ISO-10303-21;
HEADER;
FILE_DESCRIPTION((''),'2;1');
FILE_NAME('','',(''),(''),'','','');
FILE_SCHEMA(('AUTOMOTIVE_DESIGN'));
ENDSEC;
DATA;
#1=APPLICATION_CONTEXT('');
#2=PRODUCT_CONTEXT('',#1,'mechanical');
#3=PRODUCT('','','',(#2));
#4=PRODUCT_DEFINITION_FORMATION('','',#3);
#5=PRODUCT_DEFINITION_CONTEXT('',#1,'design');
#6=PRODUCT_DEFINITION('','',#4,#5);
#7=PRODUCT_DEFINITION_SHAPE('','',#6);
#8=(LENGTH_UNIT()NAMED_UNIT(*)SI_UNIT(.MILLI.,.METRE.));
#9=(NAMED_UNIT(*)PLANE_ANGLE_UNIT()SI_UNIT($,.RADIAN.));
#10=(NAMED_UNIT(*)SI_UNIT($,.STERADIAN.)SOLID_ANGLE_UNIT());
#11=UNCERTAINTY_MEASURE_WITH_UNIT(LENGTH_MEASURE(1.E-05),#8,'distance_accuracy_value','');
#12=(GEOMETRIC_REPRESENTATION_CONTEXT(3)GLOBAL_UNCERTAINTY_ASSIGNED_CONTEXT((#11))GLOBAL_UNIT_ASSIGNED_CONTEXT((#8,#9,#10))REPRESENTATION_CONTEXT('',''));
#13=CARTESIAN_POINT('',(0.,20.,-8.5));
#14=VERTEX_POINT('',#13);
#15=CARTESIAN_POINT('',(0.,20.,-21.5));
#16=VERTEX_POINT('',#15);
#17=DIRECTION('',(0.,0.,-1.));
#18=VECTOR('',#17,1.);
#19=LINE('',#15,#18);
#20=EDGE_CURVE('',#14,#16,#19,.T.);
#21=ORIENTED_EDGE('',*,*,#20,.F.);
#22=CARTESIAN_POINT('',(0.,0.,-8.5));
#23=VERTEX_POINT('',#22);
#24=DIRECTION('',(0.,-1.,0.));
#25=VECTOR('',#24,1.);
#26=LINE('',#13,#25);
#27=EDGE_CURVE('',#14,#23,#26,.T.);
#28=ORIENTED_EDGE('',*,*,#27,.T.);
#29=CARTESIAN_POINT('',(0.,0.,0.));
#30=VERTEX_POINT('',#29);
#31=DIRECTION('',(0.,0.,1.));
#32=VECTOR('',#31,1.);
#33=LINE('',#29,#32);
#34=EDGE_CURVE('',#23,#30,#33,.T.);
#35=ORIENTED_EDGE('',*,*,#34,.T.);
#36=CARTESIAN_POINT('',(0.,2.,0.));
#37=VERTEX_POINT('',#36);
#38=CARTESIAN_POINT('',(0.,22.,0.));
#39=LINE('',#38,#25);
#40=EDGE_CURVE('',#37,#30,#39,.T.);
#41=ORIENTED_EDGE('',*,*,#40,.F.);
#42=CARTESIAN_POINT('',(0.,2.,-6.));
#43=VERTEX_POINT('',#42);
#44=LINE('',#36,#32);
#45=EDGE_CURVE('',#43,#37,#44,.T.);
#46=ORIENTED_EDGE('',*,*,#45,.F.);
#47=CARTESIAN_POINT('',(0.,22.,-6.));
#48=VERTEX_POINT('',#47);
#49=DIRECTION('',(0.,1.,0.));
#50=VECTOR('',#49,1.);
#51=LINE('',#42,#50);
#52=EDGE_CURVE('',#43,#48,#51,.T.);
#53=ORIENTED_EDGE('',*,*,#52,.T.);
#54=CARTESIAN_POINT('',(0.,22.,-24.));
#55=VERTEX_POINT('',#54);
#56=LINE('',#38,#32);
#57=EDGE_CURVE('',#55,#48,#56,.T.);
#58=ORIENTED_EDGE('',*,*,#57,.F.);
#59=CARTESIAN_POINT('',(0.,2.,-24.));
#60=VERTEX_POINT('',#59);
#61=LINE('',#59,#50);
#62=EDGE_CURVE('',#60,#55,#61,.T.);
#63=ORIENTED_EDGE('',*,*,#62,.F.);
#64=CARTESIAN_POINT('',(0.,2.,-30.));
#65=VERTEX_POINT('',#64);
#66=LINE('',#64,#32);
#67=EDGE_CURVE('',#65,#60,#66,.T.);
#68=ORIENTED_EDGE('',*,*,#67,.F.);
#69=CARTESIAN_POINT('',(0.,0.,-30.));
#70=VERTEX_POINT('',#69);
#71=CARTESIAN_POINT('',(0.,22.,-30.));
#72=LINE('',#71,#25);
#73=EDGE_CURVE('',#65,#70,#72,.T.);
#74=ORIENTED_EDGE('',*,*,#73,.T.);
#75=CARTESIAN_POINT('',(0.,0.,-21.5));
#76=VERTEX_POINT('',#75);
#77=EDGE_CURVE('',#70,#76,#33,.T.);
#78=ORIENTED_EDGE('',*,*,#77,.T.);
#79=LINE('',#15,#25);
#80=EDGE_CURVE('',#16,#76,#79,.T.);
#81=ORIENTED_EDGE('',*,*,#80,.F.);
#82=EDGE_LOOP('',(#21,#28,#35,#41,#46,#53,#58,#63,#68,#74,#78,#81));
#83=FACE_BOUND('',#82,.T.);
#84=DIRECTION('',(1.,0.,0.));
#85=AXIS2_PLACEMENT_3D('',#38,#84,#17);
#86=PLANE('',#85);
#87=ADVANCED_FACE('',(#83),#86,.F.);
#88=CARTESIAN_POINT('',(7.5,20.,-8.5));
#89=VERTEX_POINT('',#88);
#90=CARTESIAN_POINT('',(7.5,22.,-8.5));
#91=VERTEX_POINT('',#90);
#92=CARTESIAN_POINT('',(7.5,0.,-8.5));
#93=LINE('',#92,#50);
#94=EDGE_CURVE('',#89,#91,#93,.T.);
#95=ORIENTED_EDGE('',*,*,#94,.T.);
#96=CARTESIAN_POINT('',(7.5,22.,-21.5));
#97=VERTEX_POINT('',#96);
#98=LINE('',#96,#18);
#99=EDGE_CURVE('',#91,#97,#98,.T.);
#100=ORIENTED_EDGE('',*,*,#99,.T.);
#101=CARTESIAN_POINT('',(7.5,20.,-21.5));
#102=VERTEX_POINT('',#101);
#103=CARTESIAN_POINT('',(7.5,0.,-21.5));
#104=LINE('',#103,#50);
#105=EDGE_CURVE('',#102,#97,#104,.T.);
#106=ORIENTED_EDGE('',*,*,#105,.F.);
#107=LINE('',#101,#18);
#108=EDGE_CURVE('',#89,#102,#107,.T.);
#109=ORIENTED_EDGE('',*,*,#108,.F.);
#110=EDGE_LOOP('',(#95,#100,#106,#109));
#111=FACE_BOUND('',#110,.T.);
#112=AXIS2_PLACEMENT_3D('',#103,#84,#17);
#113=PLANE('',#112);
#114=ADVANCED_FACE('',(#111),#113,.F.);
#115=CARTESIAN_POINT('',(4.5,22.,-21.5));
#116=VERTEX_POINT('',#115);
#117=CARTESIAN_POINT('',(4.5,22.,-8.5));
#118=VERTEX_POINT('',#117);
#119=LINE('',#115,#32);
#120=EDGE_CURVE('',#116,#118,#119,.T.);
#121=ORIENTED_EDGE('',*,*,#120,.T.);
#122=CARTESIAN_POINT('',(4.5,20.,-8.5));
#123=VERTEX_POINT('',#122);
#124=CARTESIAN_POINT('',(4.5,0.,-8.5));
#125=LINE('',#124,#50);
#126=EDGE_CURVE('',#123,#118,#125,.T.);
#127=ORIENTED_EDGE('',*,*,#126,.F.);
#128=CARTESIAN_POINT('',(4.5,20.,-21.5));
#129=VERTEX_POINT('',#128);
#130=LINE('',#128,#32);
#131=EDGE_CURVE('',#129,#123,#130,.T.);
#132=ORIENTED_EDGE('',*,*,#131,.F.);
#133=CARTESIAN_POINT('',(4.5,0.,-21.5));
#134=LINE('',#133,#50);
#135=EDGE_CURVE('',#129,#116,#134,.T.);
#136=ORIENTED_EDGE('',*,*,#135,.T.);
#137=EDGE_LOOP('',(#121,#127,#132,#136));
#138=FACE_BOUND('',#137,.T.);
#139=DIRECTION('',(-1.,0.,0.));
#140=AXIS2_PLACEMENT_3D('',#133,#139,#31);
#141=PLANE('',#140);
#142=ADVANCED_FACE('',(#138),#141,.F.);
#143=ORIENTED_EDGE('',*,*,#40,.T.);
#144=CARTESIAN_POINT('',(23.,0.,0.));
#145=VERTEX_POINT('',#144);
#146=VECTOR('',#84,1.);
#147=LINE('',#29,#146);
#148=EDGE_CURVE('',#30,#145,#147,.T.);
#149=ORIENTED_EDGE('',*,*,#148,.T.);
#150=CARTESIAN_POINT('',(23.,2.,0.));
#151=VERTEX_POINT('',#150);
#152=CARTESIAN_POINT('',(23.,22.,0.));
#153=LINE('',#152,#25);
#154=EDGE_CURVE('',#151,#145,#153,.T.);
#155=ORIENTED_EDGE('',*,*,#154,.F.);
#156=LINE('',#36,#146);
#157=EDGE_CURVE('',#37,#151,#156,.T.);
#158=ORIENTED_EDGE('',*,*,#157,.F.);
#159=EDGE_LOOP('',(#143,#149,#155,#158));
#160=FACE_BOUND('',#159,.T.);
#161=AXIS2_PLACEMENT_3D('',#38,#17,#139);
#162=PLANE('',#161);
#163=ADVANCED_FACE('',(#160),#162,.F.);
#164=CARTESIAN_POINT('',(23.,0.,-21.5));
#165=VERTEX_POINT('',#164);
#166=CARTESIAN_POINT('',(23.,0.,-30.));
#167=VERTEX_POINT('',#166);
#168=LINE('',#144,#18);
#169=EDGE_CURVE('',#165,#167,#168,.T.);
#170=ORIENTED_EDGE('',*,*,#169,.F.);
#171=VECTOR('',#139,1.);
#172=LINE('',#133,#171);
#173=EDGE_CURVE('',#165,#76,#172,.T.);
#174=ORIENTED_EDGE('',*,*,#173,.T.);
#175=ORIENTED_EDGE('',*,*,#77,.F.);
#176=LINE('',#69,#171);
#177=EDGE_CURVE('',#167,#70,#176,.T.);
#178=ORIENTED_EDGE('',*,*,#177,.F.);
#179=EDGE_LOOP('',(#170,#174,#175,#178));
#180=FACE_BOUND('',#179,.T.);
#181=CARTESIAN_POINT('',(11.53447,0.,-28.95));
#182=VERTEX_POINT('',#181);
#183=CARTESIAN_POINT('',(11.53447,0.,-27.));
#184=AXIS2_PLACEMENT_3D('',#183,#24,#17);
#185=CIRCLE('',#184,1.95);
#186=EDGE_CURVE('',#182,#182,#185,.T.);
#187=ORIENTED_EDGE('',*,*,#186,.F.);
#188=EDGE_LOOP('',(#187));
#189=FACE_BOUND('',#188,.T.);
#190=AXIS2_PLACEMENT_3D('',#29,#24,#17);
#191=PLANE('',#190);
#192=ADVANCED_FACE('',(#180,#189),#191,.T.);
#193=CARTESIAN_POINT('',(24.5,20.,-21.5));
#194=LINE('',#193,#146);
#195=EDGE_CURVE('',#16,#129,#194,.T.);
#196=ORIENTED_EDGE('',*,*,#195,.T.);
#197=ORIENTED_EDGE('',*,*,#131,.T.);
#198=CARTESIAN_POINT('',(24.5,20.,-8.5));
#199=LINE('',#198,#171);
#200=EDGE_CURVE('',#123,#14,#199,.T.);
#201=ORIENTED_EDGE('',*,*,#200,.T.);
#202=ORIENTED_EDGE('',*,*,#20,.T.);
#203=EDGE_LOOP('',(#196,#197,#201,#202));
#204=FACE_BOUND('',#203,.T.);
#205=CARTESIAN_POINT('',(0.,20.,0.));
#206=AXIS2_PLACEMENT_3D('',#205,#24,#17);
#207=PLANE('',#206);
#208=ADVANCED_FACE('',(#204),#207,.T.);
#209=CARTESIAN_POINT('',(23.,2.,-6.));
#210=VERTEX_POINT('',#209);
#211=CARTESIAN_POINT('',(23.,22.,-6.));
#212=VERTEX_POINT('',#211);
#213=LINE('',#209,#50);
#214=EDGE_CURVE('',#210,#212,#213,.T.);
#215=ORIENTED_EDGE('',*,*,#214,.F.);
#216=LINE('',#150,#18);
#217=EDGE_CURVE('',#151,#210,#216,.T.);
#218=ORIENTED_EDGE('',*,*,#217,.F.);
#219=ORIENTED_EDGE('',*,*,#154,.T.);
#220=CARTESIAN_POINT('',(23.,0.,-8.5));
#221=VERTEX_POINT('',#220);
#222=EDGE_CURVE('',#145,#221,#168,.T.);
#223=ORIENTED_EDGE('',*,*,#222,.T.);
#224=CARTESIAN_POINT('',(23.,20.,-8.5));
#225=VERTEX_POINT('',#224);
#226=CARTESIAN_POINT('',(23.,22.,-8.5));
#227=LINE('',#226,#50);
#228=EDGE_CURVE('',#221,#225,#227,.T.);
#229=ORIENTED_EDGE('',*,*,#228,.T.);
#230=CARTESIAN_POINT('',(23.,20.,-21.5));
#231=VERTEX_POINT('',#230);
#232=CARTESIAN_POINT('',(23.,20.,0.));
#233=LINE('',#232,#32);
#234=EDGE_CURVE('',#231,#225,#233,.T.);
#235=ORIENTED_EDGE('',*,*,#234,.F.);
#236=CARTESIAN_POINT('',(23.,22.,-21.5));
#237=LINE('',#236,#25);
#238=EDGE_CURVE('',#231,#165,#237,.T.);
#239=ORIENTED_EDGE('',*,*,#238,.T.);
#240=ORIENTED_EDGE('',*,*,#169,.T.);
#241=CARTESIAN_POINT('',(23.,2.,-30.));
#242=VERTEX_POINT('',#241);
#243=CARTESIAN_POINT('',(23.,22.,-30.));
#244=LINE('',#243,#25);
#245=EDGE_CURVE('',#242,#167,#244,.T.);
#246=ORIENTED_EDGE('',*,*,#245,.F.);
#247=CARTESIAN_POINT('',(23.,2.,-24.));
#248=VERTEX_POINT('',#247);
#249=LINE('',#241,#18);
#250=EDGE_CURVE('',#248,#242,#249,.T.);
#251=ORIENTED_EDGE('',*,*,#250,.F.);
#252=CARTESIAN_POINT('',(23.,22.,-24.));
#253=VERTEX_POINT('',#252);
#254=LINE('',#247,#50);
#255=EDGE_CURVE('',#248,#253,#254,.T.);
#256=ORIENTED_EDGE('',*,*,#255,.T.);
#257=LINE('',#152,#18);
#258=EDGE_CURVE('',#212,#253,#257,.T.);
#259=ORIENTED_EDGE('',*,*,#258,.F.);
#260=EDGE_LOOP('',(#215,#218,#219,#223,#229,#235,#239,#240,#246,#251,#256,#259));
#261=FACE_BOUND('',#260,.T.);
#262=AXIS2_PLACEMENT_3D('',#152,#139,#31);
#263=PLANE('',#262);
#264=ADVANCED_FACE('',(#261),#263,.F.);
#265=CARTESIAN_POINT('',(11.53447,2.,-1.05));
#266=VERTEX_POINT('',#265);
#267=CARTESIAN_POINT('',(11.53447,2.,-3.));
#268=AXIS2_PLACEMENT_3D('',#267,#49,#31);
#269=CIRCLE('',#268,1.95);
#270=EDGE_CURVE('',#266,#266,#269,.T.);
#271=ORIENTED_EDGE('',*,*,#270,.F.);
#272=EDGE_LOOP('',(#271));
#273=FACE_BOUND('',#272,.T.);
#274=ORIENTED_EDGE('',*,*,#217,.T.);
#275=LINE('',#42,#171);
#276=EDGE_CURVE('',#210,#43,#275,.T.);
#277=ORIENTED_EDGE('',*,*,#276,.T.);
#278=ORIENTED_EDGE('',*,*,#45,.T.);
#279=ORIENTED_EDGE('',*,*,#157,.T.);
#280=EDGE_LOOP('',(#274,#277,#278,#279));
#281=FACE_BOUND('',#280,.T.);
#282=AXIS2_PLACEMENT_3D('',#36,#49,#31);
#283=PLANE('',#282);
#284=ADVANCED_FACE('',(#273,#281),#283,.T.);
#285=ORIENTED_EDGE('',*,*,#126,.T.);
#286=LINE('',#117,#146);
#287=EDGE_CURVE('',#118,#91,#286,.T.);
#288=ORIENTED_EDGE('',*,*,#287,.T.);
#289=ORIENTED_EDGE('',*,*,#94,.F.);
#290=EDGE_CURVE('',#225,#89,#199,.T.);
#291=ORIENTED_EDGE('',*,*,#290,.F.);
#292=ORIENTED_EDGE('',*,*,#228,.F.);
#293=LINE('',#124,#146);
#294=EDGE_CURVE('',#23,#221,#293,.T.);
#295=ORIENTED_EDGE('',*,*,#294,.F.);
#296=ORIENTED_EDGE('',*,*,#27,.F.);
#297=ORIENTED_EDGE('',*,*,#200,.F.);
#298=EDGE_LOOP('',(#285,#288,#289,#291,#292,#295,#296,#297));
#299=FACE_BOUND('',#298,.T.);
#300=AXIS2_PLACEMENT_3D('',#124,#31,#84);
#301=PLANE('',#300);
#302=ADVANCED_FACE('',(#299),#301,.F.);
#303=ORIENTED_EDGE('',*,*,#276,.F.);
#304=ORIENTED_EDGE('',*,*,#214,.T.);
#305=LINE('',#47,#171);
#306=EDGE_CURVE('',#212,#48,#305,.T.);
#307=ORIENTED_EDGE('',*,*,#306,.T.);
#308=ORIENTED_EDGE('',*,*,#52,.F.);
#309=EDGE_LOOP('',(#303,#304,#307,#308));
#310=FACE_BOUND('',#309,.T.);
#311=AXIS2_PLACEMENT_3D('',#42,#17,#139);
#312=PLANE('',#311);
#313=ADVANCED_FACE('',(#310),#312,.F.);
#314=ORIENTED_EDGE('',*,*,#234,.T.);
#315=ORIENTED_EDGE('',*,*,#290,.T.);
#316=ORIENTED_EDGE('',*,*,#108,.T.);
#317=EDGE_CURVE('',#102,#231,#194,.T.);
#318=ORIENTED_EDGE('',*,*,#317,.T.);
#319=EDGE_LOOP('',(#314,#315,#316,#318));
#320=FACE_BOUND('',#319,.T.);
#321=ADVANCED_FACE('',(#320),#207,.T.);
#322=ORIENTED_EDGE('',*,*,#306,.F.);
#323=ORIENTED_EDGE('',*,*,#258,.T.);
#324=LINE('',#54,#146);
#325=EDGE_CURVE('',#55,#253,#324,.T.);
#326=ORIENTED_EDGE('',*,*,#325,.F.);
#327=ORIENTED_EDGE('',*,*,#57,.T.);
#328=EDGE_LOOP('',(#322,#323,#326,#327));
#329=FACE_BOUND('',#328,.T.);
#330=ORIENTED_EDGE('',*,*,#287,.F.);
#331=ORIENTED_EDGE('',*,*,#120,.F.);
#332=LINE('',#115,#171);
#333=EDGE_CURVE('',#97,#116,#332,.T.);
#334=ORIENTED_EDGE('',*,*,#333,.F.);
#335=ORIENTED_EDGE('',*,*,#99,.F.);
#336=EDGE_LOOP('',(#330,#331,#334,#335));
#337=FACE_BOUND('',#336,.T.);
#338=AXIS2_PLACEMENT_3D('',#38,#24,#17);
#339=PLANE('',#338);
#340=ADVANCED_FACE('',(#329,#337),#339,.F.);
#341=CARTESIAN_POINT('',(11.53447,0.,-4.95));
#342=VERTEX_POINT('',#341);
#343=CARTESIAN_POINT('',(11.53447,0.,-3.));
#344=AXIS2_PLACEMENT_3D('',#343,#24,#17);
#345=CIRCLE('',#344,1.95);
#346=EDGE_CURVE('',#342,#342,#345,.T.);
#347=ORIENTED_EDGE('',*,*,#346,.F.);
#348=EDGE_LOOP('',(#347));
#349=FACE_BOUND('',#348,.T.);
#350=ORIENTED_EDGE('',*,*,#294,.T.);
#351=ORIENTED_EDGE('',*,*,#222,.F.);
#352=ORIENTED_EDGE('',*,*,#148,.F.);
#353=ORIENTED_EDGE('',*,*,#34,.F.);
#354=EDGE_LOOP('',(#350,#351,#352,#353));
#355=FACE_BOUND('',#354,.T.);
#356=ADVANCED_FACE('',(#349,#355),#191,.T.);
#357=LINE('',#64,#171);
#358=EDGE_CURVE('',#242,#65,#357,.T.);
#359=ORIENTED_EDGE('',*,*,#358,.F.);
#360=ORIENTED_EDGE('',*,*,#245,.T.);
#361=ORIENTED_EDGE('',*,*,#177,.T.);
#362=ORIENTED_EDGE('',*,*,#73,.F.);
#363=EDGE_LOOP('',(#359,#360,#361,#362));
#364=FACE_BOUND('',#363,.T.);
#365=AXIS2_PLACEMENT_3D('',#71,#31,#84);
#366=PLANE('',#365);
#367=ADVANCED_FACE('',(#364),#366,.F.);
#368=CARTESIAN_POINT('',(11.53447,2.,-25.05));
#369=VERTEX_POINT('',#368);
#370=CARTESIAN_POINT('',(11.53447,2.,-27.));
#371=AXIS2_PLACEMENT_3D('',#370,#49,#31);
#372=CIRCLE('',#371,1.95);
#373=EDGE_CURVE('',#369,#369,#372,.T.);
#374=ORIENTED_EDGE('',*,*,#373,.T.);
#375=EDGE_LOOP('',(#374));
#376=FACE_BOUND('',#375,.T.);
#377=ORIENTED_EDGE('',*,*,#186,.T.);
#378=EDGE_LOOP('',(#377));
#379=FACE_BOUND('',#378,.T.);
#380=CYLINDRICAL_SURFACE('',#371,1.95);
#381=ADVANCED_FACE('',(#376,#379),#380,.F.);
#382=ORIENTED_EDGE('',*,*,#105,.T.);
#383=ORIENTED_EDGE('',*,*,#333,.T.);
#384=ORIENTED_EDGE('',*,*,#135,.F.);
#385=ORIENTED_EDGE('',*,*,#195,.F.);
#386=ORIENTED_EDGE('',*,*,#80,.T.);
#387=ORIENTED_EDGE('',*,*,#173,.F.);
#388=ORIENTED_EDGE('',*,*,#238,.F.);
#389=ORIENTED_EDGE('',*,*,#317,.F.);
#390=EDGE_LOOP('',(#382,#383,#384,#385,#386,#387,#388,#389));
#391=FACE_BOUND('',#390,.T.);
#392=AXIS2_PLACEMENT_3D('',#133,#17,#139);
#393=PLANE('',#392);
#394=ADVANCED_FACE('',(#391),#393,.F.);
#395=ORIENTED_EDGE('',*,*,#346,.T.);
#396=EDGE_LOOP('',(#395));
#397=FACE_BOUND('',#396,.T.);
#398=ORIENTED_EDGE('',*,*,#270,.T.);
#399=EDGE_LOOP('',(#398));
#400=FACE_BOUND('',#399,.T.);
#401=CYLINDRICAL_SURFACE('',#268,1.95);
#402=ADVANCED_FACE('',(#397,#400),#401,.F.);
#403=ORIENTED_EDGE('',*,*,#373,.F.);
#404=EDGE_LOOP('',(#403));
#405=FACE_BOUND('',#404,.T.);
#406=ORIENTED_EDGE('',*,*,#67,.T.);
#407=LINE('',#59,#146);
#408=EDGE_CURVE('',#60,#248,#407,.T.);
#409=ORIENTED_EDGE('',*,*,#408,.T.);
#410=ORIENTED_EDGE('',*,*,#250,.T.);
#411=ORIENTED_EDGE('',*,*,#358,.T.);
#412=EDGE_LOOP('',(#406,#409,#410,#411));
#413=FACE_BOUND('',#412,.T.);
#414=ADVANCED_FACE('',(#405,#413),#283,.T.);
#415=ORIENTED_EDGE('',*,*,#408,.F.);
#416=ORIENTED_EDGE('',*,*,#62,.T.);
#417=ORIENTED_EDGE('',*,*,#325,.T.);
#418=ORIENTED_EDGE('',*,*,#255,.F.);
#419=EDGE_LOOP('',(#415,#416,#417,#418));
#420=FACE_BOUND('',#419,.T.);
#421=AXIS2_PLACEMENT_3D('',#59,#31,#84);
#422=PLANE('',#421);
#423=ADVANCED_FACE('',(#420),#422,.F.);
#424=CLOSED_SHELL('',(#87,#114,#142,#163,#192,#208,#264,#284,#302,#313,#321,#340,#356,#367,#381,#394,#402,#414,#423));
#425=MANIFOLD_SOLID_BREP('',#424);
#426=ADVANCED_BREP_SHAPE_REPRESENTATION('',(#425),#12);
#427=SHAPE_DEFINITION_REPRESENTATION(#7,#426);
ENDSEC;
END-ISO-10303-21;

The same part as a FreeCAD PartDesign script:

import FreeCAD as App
import Part
import Sketcher
Q = App.Units.Quantity


def add_polygon(sketch, points):
    """Adds a closed chain of lines whose ends are joined by coincident constraints."""
    first, n = sketch.GeometryCount, len(points)
    for a, b in zip(points, points[1:] + points[:1]):
        sketch.addGeometry(Part.LineSegment(App.Vector(*a, 0), App.Vector(*b, 0)), False)
    for i in range(n):
        sketch.addConstraint(Sketcher.Constraint("Coincident", first + i, 2, first + (i + 1) % n, 1))

doc = App.newDocument("Part")
body = doc.addObject("PartDesign::Body", "Body")

sketch1 = doc.addObject("Sketcher::SketchObject", "Sketch")
body.addObject(sketch1)
sketch1.AttachmentSupport = (doc.XZ_Plane, [""])
sketch1.MapMode = "FlatFace"
add_polygon(sketch1, [(0, -30), (0, 0), (23, 0), (23, -30)])
sketch1.addConstraint(Sketcher.Constraint("Vertical", 0))
sketch1.addConstraint(Sketcher.Constraint("Horizontal", 1))
sketch1.addConstraint(Sketcher.Constraint("Vertical", 2))
sketch1.addConstraint(Sketcher.Constraint("Horizontal", 3))
sketch1.addConstraint(Sketcher.Constraint("Coincident", 0, 2, -1, 1))
sketch1.addConstraint(Sketcher.Constraint("DistanceX", 1, 1, 1, 2, Q("23 mm")))
sketch1.addConstraint(Sketcher.Constraint("DistanceY", 0, 1, 0, 2, Q("30 mm")))
pad1 = doc.addObject("PartDesign::Pad", "Pad")
body.addObject(pad1)
pad1.Profile = sketch1
pad1.Length = 22
pad1.Reversed = True

sketch2 = doc.addObject("Sketcher::SketchObject", "Sketch001")
body.addObject(sketch2)
sketch2.AttachmentSupport = (doc.XZ_Plane, [""])
sketch2.MapMode = "FlatFace"
sketch2.AttachmentOffset = App.Placement(App.Vector(0, 0, -22), App.Rotation())
add_polygon(sketch2, [(0, -30), (0, -24), (23, -24), (23, -30)])
add_polygon(sketch2, [(0, -6), (0, 0), (23, 0), (23, -6)])
sketch2.addConstraint(Sketcher.Constraint("Vertical", 0))
sketch2.addConstraint(Sketcher.Constraint("Horizontal", 1))
sketch2.addConstraint(Sketcher.Constraint("Vertical", 2))
sketch2.addConstraint(Sketcher.Constraint("Horizontal", 3))
sketch2.addConstraint(Sketcher.Constraint("Vertical", 4))
sketch2.addConstraint(Sketcher.Constraint("Horizontal", 5))
sketch2.addConstraint(Sketcher.Constraint("Vertical", 6))
sketch2.addConstraint(Sketcher.Constraint("Horizontal", 7))
sketch2.addConstraint(Sketcher.Constraint("Coincident", 4, 2, -1, 1))
sketch2.addConstraint(Sketcher.Constraint("PointOnObject", 0, 2, -2))
sketch2.addConstraint(Sketcher.Constraint("Vertical", 2, 2, 5, 2))
sketch2.addConstraint(Sketcher.Constraint("Equal", 2, 4))
sketch2.addConstraint(Sketcher.Constraint("DistanceX", 1, 1, 1, 2, Q("23 mm")))
sketch2.addConstraint(Sketcher.Constraint("DistanceY", 0, 1, 0, 2, Q("6 mm")))
sketch2.addConstraint(Sketcher.Constraint("DistanceY", 0, 2, -1, 1, Q("24 mm")))
pocket1 = doc.addObject("PartDesign::Pocket", "Pocket")
body.addObject(pocket1)
pocket1.Profile = sketch2
pocket1.Length = 20
pocket1.Reversed = True

sketch3 = doc.addObject("Sketcher::SketchObject", "Sketch002")
body.addObject(sketch3)
sketch3.AttachmentSupport = (doc.XZ_Plane, [""])
sketch3.MapMode = "FlatFace"
sketch3.AttachmentOffset = App.Placement(App.Vector(0, 0, -2), App.Rotation())
sketch3.addGeometry(Part.Circle(App.Vector(11.5, -27, 0), App.Vector(0, 0, 1), 1.9), False)
sketch3.addGeometry(Part.Circle(App.Vector(11.5, -3, 0), App.Vector(0, 0, 1), 1.9), False)
sketch3.addConstraint(Sketcher.Constraint("Equal", 0, 1))
sketch3.addConstraint(Sketcher.Constraint("Vertical", 0, 3, 1, 3))
sketch3.addConstraint(Sketcher.Constraint("Diameter", 0, Q("3.9 mm")))
sketch3.addConstraint(Sketcher.Constraint("DistanceY", 0, 3, -1, 1, Q("27 mm")))
sketch3.addConstraint(Sketcher.Constraint("DistanceY", 1, 3, -1, 1, Q("3 mm")))
sketch3.addConstraint(Sketcher.Constraint("DistanceX", -1, 1, 0, 3, Q("11.53447 mm")))
doc.recompute()
hole = doc.addObject("PartDesign::Hole", "Hole")
body.addObject(hole)
hole.Profile = sketch3
hole.ThreadType = "None"
hole.Diameter = 3.9
hole.DepthType = "Dimension"
hole.Depth = 5
hole.DrillPoint = "Angled"
hole.DrillPointAngle = 118
hole.Reversed = True

sketch4 = doc.addObject("Sketcher::SketchObject", "Sketch003")
body.addObject(sketch4)
sketch4.AttachmentSupport = (doc.XZ_Plane, [""])
sketch4.MapMode = "FlatFace"
sketch4.AttachmentOffset = App.Placement(App.Vector(0, 0, -22), App.Rotation())
add_polygon(sketch4, [(4.5, -21.5), (4.5, -8.5), (7.5, -8.5), (7.5, -21.5)])
sketch4.addConstraint(Sketcher.Constraint("Vertical", 0))
sketch4.addConstraint(Sketcher.Constraint("Horizontal", 1))
sketch4.addConstraint(Sketcher.Constraint("Vertical", 2))
sketch4.addConstraint(Sketcher.Constraint("Horizontal", 3))
sketch4.addConstraint(Sketcher.Constraint("DistanceX", 1, 1, 1, 2, Q("3 mm")))
sketch4.addConstraint(Sketcher.Constraint("DistanceY", 0, 1, 0, 2, Q("13 mm")))
sketch4.addConstraint(Sketcher.Constraint("DistanceX", -1, 1, 0, 2, Q("4.5 mm")))
sketch4.addConstraint(Sketcher.Constraint("DistanceY", 0, 2, -1, 1, Q("8.5 mm")))
pocket2 = doc.addObject("PartDesign::Pocket", "Pocket001")
body.addObject(pocket2)
pocket2.Profile = sketch4
pocket2.Type = "ThroughAll"
pocket2.Reversed = True

sketch5 = doc.addObject("Sketcher::SketchObject", "Sketch004")
body.addObject(sketch5)
sketch5.AttachmentSupport = (doc.XZ_Plane, [""])
sketch5.MapMode = "FlatFace"
add_polygon(sketch5, [(0, -8), (0, -22), (24, -22), (24, -8)])
sketch5.addConstraint(Sketcher.Constraint("Vertical", 0))
sketch5.addConstraint(Sketcher.Constraint("Horizontal", 1))
sketch5.addConstraint(Sketcher.Constraint("Vertical", 2))
sketch5.addConstraint(Sketcher.Constraint("Horizontal", 3))
sketch5.addConstraint(Sketcher.Constraint("PointOnObject", 0, 2, -2))
sketch5.addConstraint(Sketcher.Constraint("DistanceY", 0, 2, 0, 1, Q("13 mm")))
sketch5.addConstraint(Sketcher.Constraint("DistanceX", 1, 1, 1, 2, Q("24.5 mm")))
sketch5.addConstraint(Sketcher.Constraint("DistanceY", 0, 2, -1, 1, Q("21.5 mm")))
pocket3 = doc.addObject("PartDesign::Pocket", "Pocket002")
body.addObject(pocket3)
pocket3.Profile = sketch5
pocket3.Length = 20

doc.recompute()
